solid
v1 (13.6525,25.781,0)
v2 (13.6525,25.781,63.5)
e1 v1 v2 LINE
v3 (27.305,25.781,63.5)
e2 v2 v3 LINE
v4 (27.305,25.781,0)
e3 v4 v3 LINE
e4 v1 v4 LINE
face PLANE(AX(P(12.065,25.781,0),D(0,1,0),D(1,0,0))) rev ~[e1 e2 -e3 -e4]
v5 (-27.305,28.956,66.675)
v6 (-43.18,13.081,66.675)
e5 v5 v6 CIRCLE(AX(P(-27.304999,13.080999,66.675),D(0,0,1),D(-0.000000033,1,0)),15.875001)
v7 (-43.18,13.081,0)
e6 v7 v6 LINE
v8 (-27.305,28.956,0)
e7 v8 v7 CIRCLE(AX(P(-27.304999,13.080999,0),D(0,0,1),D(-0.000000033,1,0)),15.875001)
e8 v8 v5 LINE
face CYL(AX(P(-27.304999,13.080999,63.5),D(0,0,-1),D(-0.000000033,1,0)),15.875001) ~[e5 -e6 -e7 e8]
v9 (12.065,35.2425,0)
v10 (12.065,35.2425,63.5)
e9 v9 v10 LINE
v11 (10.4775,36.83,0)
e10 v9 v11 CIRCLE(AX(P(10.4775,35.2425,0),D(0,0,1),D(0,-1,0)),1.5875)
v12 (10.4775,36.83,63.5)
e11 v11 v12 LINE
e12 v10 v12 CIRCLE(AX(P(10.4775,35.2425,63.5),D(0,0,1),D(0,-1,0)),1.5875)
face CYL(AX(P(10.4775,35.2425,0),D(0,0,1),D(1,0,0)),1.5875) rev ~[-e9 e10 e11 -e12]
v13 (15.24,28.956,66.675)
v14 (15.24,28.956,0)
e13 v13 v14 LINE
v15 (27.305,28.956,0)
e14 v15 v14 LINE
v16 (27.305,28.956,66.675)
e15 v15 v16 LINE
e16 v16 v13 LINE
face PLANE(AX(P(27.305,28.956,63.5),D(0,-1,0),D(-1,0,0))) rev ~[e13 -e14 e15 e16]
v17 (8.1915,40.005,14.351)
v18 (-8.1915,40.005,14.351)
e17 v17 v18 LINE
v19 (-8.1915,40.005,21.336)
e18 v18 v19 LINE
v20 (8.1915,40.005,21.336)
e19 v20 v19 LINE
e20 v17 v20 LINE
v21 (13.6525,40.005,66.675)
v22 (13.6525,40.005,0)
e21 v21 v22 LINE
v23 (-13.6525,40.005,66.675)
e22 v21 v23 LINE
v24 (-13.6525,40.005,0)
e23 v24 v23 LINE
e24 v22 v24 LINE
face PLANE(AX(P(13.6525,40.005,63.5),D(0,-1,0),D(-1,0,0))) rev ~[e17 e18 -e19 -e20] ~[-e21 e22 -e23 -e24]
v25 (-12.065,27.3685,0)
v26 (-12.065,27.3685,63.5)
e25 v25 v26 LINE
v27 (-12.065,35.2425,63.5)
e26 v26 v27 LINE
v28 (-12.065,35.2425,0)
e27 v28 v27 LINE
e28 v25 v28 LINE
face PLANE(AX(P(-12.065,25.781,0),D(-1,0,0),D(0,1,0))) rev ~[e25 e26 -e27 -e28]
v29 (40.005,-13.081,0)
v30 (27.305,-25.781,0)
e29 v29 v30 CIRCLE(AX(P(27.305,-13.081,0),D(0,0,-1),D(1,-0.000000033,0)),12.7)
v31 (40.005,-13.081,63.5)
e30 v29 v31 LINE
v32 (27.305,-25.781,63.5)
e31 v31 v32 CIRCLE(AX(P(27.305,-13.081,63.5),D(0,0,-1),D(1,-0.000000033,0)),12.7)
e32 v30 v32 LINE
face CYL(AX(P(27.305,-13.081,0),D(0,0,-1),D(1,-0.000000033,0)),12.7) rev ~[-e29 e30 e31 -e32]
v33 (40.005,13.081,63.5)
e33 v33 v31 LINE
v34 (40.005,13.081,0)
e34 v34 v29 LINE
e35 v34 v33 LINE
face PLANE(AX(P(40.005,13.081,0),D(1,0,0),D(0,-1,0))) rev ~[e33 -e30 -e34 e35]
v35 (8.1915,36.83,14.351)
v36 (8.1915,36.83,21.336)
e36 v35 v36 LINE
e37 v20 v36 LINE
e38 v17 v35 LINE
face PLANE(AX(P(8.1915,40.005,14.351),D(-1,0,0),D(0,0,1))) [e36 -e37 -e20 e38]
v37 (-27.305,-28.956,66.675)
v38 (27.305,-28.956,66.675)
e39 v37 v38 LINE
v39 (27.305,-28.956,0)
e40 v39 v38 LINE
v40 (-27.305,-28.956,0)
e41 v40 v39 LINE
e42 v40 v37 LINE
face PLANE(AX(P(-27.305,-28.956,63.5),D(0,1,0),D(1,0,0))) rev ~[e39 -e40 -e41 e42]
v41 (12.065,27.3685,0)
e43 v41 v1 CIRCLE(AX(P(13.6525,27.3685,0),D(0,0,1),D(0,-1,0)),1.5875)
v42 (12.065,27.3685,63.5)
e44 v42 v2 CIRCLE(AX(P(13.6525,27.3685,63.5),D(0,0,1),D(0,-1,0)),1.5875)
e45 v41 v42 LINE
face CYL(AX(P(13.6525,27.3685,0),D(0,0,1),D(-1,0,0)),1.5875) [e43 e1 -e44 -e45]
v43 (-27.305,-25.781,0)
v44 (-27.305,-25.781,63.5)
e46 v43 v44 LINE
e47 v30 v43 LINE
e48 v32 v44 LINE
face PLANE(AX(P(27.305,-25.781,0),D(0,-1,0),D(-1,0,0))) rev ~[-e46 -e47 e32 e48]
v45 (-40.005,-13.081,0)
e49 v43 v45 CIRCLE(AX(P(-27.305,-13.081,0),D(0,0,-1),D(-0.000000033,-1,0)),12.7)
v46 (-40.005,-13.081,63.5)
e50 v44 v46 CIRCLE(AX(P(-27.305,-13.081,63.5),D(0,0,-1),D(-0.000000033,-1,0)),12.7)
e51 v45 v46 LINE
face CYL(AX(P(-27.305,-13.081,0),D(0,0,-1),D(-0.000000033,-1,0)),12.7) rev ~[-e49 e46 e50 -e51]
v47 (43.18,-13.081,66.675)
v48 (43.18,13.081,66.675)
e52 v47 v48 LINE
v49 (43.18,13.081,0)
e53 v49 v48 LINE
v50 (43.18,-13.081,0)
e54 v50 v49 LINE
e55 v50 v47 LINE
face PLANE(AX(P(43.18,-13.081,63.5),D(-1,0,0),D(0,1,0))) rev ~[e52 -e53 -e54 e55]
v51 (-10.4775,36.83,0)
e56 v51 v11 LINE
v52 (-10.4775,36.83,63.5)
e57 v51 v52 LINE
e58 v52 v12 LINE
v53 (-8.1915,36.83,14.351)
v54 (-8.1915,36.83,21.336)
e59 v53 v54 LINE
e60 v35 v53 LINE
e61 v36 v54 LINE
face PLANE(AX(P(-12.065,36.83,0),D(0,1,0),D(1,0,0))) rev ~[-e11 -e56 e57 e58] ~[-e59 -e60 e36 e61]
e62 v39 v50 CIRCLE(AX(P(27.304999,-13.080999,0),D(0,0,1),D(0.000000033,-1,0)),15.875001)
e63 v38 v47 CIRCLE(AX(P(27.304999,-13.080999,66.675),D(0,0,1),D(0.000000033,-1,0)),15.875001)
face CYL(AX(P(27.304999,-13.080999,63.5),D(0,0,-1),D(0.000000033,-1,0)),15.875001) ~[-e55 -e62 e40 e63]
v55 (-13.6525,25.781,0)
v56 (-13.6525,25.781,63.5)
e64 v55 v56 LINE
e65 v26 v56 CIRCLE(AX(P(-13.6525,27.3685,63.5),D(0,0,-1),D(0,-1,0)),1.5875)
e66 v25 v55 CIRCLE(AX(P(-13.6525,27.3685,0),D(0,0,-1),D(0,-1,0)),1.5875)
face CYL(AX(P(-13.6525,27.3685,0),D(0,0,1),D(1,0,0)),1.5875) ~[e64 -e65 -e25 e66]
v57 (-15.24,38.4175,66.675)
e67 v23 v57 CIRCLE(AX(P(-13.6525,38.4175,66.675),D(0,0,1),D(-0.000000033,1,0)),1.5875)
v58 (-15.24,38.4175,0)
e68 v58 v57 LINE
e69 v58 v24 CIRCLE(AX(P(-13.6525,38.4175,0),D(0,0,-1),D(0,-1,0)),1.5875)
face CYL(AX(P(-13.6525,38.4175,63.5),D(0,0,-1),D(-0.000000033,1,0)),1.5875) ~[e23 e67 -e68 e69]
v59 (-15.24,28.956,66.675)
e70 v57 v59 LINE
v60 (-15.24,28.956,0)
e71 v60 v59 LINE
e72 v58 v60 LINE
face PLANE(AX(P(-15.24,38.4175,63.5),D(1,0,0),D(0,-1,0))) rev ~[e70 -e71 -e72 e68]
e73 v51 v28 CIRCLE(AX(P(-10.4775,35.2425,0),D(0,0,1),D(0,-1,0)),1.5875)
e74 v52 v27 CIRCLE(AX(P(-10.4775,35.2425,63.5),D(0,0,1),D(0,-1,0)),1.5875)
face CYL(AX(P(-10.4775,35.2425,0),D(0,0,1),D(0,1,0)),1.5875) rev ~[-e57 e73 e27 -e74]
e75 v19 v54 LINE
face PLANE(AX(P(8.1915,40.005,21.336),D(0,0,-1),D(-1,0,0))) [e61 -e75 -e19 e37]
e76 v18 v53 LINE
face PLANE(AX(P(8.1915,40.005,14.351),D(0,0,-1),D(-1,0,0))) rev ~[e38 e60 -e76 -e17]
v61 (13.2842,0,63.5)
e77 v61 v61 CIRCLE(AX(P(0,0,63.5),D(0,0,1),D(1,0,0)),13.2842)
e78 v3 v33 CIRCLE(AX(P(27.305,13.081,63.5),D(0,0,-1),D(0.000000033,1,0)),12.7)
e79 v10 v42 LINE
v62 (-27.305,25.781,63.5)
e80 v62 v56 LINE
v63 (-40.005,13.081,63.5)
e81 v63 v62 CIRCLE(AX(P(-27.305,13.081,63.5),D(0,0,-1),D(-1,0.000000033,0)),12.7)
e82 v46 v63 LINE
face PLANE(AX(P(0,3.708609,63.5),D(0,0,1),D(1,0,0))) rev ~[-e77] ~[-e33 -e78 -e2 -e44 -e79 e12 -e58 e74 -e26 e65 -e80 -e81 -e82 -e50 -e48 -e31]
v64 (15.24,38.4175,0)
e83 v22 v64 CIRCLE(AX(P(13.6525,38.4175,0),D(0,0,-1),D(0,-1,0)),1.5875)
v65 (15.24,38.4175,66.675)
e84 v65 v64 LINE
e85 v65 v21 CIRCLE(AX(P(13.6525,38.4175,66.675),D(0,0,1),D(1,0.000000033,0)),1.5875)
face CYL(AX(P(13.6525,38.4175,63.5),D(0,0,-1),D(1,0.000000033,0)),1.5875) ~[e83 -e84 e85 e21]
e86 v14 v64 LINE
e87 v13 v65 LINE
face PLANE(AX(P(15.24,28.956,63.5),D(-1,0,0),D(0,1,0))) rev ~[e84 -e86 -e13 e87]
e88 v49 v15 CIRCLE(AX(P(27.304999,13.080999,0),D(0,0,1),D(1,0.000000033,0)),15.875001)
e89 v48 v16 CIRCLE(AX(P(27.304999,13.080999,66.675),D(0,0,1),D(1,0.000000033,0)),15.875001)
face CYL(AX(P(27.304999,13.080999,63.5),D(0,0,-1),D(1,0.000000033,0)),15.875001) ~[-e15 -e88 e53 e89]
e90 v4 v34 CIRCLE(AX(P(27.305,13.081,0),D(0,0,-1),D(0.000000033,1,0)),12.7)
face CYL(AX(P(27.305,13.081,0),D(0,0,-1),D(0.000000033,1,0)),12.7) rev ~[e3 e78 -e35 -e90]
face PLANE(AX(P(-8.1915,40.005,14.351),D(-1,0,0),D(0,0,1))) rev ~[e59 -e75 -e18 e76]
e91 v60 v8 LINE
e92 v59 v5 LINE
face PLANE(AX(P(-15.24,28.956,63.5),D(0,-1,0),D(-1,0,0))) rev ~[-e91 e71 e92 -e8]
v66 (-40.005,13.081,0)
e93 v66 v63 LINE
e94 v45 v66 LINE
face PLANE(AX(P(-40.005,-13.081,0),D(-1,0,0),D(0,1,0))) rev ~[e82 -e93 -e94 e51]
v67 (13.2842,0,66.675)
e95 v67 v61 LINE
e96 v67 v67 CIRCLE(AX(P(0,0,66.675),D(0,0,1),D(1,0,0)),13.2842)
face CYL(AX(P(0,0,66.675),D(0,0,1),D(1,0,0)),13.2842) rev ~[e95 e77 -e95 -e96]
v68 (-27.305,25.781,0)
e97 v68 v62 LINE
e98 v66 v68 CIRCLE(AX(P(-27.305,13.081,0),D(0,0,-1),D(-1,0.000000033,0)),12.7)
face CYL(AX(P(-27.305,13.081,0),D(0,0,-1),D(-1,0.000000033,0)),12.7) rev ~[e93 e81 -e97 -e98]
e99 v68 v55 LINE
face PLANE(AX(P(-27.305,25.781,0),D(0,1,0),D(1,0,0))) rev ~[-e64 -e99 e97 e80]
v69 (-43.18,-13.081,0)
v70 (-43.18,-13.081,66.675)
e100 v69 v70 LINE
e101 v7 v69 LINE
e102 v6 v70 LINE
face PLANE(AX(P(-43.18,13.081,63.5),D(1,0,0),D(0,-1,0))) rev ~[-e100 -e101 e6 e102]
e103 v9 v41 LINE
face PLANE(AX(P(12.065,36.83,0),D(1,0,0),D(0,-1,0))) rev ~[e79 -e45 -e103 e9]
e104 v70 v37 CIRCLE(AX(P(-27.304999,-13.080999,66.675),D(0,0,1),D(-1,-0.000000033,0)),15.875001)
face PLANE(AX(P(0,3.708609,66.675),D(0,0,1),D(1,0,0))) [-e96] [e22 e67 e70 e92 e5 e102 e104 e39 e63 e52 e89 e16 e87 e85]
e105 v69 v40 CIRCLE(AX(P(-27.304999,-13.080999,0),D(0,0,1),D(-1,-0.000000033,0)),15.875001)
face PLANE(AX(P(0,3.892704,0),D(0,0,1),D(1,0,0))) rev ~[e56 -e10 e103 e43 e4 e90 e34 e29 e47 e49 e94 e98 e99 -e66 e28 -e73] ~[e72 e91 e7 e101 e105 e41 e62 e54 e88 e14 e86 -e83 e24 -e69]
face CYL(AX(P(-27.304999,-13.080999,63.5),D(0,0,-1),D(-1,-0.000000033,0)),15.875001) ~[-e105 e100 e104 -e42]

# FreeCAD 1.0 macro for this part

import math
import FreeCAD as App
import Part
import Sketcher
Q = App.Units.Quantity


def edges_at(feature, points):
    """Names of the edges that pass closest to the given points."""
    edges = feature.Shape.Edges
    near = lambda p: min(range(len(edges)), key=lambda i: edges[i].distToShape(Part.Vertex(*p))[0])
    return sorted({f"Edge{near(p) + 1}" for p in points})


def add_polygon(sketch, points):
    """Adds a closed chain of lines whose ends are joined by coincident constraints."""
    first, n = sketch.GeometryCount, len(points)
    for a, b in zip(points, points[1:] + points[:1]):
        sketch.addGeometry(Part.LineSegment(App.Vector(*a, 0), App.Vector(*b, 0)), False)
    for i in range(n):
        sketch.addConstraint(Sketcher.Constraint("Coincident", first + i, 2, first + (i + 1) % n, 1))

doc = App.newDocument("Part")
body = doc.addObject("PartDesign::Body", "Body")

# Sketch on XY plane
sketch1 = doc.addObject("Sketcher::SketchObject", "Sketch")
body.addObject(sketch1)
sketch1.AttachmentSupport = (doc.XY_Plane, [""])
sketch1.MapMode = "FlatFace"
sketch1.addGeometry([
    Part.LineSegment(App.Vector(-15, 40, 0), App.Vector(-15, 29, 0)),  # 0
    Part.LineSegment(App.Vector(-15, 29, 0), App.Vector(-27, 29, 0)),  # 1
    Part.ArcOfCircle(Part.Circle(App.Vector(-27, 13, 0), App.Vector(0, 0, 1), 16), math.radians(90), math.radians(180)),  # 2
    Part.LineSegment(App.Vector(-43, 13, 0), App.Vector(-43, -13, 0)),  # 3
    Part.ArcOfCircle(Part.Circle(App.Vector(-27, -13, 0), App.Vector(0, 0, 1), 16), math.radians(-180), math.radians(-90)),  # 4
    Part.LineSegment(App.Vector(-27, -29, 0), App.Vector(27, -29, 0)),  # 5
    Part.ArcOfCircle(Part.Circle(App.Vector(27, -13, 0), App.Vector(0, 0, 1), 16), math.radians(-90), math.radians(0)),  # 6
    Part.LineSegment(App.Vector(43, -13, 0), App.Vector(43, 13, 0)),  # 7
    Part.ArcOfCircle(Part.Circle(App.Vector(27, 13, 0), App.Vector(0, 0, 1), 16), math.radians(0), math.radians(90)),  # 8
    Part.LineSegment(App.Vector(27, 29, 0), App.Vector(15, 29, 0)),  # 9
    Part.LineSegment(App.Vector(15, 29, 0), App.Vector(15, 40, 0)),  # 10
    Part.LineSegment(App.Vector(15, 40, 0), App.Vector(-15, 40, 0)),  # 11
    Part.LineSegment(App.Vector(12, 37, 0), App.Vector(12, 26, 0)),  # 12
    Part.LineSegment(App.Vector(12, 26, 0), App.Vector(27, 26, 0)),  # 13
    Part.ArcOfCircle(Part.Circle(App.Vector(27, 13, 0), App.Vector(0, 0, 1), 13), math.radians(0), math.radians(90)),  # 14
    Part.LineSegment(App.Vector(40, 13, 0), App.Vector(40, -13, 0)),  # 15
    Part.ArcOfCircle(Part.Circle(App.Vector(27, -13, 0), App.Vector(0, 0, 1), 13), math.radians(-90), math.radians(0)),  # 16
    Part.LineSegment(App.Vector(27, -26, 0), App.Vector(-27, -26, 0)),  # 17
    Part.ArcOfCircle(Part.Circle(App.Vector(-27, -13, 0), App.Vector(0, 0, 1), 13), math.radians(-180), math.radians(-90)),  # 18
    Part.LineSegment(App.Vector(-40, -13, 0), App.Vector(-40, 13, 0)),  # 19
    Part.ArcOfCircle(Part.Circle(App.Vector(-27, 13, 0), App.Vector(0, 0, 1), 13), math.radians(90), math.radians(180)),  # 20
    Part.LineSegment(App.Vector(-27, 26, 0), App.Vector(-12, 26, 0)),  # 21
    Part.LineSegment(App.Vector(-12, 26, 0), App.Vector(-12, 37, 0)),  # 22
    Part.LineSegment(App.Vector(-12, 37, 0), App.Vector(12, 37, 0)),  # 23
], False)
sketch1.addConstraint([
    Sketcher.Constraint("Coincident", 0, 2, 1, 1),
    Sketcher.Constraint("Tangent", 1, 2, 2, 1),
    Sketcher.Constraint("Tangent", 2, 2, 3, 1),
    Sketcher.Constraint("Tangent", 3, 2, 4, 1),
    Sketcher.Constraint("Tangent", 4, 2, 5, 1),
    Sketcher.Constraint("Tangent", 5, 2, 6, 1),
    Sketcher.Constraint("Tangent", 6, 2, 7, 1),
    Sketcher.Constraint("Tangent", 7, 2, 8, 1),
    Sketcher.Constraint("Tangent", 8, 2, 9, 1),
    Sketcher.Constraint("Coincident", 9, 2, 10, 1),
    Sketcher.Constraint("Coincident", 10, 2, 11, 1),
    Sketcher.Constraint("Coincident", 11, 2, 0, 1),
    Sketcher.Constraint("Coincident", 12, 2, 13, 1),
    Sketcher.Constraint("Tangent", 13, 2, 14, 2),
    Sketcher.Constraint("Tangent", 14, 1, 15, 1),
    Sketcher.Constraint("Tangent", 15, 2, 16, 2),
    Sketcher.Constraint("Tangent", 16, 1, 17, 1),
    Sketcher.Constraint("Tangent", 17, 2, 18, 2),
    Sketcher.Constraint("Tangent", 18, 1, 19, 1),
    Sketcher.Constraint("Tangent", 19, 2, 20, 2),
    Sketcher.Constraint("Tangent", 20, 1, 21, 1),
    Sketcher.Constraint("Coincident", 21, 2, 22, 1),
    Sketcher.Constraint("Coincident", 22, 2, 23, 1),
    Sketcher.Constraint("Coincident", 23, 2, 12, 1),
    Sketcher.Constraint("Vertical", 0),
    Sketcher.Constraint("Horizontal", 1),
    Sketcher.Constraint("Vertical", 3),
    Sketcher.Constraint("Horizontal", 5),
    Sketcher.Constraint("Vertical", 7),
    Sketcher.Constraint("Horizontal", 9),
    Sketcher.Constraint("Vertical", 10),
    Sketcher.Constraint("Horizontal", 11),
    Sketcher.Constraint("Vertical", 12),
    Sketcher.Constraint("Horizontal", 13),
    Sketcher.Constraint("Vertical", 15),
    Sketcher.Constraint("Horizontal", 17),
    Sketcher.Constraint("Vertical", 19),
    Sketcher.Constraint("Horizontal", 21),
    Sketcher.Constraint("Vertical", 22),
    Sketcher.Constraint("Horizontal", 23),
    Sketcher.Constraint("Coincident", 14, 3, 8, 3),
    Sketcher.Constraint("Coincident", 16, 3, 6, 3),
    Sketcher.Constraint("Coincident", 18, 3, 4, 3),
    Sketcher.Constraint("Coincident", 20, 3, 2, 3),
    Sketcher.Constraint("Equal", 2, 4),
    Sketcher.Constraint("Equal", 4, 6),
    Sketcher.Constraint("Equal", 6, 8),
    Sketcher.Constraint("Symmetric", 2, 3, 6, 3, -1, 1),
    Sketcher.Constraint("Symmetric", 0, 2, 9, 2, -2),
    Sketcher.Constraint("Equal", 13, 21),
    Sketcher.Constraint("Equal", 10, 12),
    Sketcher.Constraint("Radius", 14, Q("0.5 in")),
    Sketcher.Constraint("DistanceX", 11, 2, 11, 1, Q("1.2 in")),
    Sketcher.Constraint("DistanceX", 13, 1, 13, 2, Q("0.6 in")),
    Sketcher.Constraint("Radius", 2, Q("0.625 in")),
    Sketcher.Constraint("DistanceX", 5, 1, 5, 2, Q("2.15 in")),
    Sketcher.Constraint("DistanceY", 3, 2, 3, 1, Q("1.03 in")),
    Sketcher.Constraint("DistanceY", 0, 2, 0, 1, Q("0.435 in")),
])
pad1 = doc.addObject("PartDesign::Pad", "Pad")
body.addObject(pad1)
pad1.Profile = sketch1
pad1.Length = Q("2.5 in")

# Sketch on XZ plane
sketch2 = doc.addObject("Sketcher::SketchObject", "Sketch001")
body.addObject(sketch2)
sketch2.AttachmentSupport = (doc.XZ_Plane, [""])
sketch2.MapMode = "FlatFace"
sketch2.AttachmentOffset = App.Placement(App.Vector(0, 0, -1.575 * 25.4), App.Rotation())
add_polygon(sketch2, [(8, 21), (8, 14), (-8, 14), (-8, 21)])  # lines 0-3
sketch2.addConstraint([
    Sketcher.Constraint("Vertical", 0),
    Sketcher.Constraint("Horizontal", 1),
    Sketcher.Constraint("Vertical", 2),
    Sketcher.Constraint("Horizontal", 3),
    Sketcher.Constraint("DistanceX", 1, 2, 1, 1, Q("0.645 in")),
    Sketcher.Constraint("DistanceY", 0, 2, 0, 1, Q("0.275 in")),
    Sketcher.Constraint("DistanceY", -1, 1, 2, 2, Q("0.84 in")),
    Sketcher.Constraint("DistanceX", -1, 1, 0, 2, Q("0.3225 in")),
])
pocket1 = doc.addObject("PartDesign::Pocket", "Pocket")
body.addObject(pocket1)
pocket1.Profile = sketch2
pocket1.Length = Q("0.125 in")
pocket1.Reversed = True
doc.recompute()

fillet = doc.addObject("PartDesign::Fillet", "Fillet")
body.addObject(fillet)
fillet.Base = (pocket1, edges_at(pocket1, [
    (-12.065, 25.781, 31.75),
    (-12.065, 36.83, 31.75),
    (12.065, 25.781, 31.75),
    (12.065, 36.83, 31.75),
    (15.24, 40.005, 31.75),
    (-15.24, 40.005, 31.75),
]))
fillet.Radius = Q("0.0625 in")

# Sketch on XY plane
sketch3 = doc.addObject("Sketcher::SketchObject", "Sketch002")
body.addObject(sketch3)
sketch3.AttachmentSupport = (doc.XY_Plane, [""])
sketch3.MapMode = "FlatFace"
sketch3.AttachmentOffset = App.Placement(App.Vector(0, 0, 2.5 * 25.4), App.Rotation())
sketch3.addGeometry([
    Part.LineSegment(App.Vector(13.7, 40, 0), App.Vector(-13.7, 40, 0)),  # 0
    Part.ArcOfCircle(Part.Circle(App.Vector(-13.7, 38.4, 0), App.Vector(0, 0, 1), 1.6), math.radians(90), math.radians(180)),  # 1
    Part.LineSegment(App.Vector(-15.2, 38.4, 0), App.Vector(-15.2, 29, 0)),  # 2
    Part.LineSegment(App.Vector(-15.2, 29, 0), App.Vector(-27.3, 29, 0)),  # 3
    Part.ArcOfCircle(Part.Circle(App.Vector(-27.3, 13.1, 0), App.Vector(0, 0, 1), 15.9), math.radians(90), math.radians(180)),  # 4
    Part.LineSegment(App.Vector(-43.2, 13.1, 0), App.Vector(-43.2, -13.1, 0)),  # 5
    Part.ArcOfCircle(Part.Circle(App.Vector(-27.3, -13.1, 0), App.Vector(0, 0, 1), 15.9), math.radians(-180), math.radians(-90)),  # 6
    Part.LineSegment(App.Vector(-27.3, -29, 0), App.Vector(27.3, -29, 0)),  # 7
    Part.ArcOfCircle(Part.Circle(App.Vector(27.3, -13.1, 0), App.Vector(0, 0, 1), 15.9), math.radians(-90), math.radians(0)),  # 8
    Part.LineSegment(App.Vector(43.2, -13.1, 0), App.Vector(43.2, 13.1, 0)),  # 9
    Part.ArcOfCircle(Part.Circle(App.Vector(27.3, 13.1, 0), App.Vector(0, 0, 1), 15.9), math.radians(0), math.radians(90)),  # 10
    Part.LineSegment(App.Vector(27.3, 29, 0), App.Vector(15.2, 29, 0)),  # 11
    Part.LineSegment(App.Vector(15.2, 29, 0), App.Vector(15.2, 38.4, 0)),  # 12
    Part.ArcOfCircle(Part.Circle(App.Vector(13.7, 38.4, 0), App.Vector(0, 0, 1), 1.6), math.radians(0), math.radians(90)),  # 13
], False)
sketch3.addConstraint([
    Sketcher.Constraint("Tangent", 0, 2, 1, 1),
    Sketcher.Constraint("Tangent", 1, 2, 2, 1),
    Sketcher.Constraint("Coincident", 2, 2, 3, 1),
    Sketcher.Constraint("Tangent", 3, 2, 4, 1),
    Sketcher.Constraint("Tangent", 4, 2, 5, 1),
    Sketcher.Constraint("Tangent", 5, 2, 6, 1),
    Sketcher.Constraint("Tangent", 6, 2, 7, 1),
    Sketcher.Constraint("Tangent", 7, 2, 8, 1),
    Sketcher.Constraint("Tangent", 8, 2, 9, 1),
    Sketcher.Constraint("Tangent", 9, 2, 10, 1),
    Sketcher.Constraint("Tangent", 10, 2, 11, 1),
    Sketcher.Constraint("Coincident", 11, 2, 12, 1),
    Sketcher.Constraint("Tangent", 12, 2, 13, 1),
    Sketcher.Constraint("Tangent", 13, 2, 0, 1),
    Sketcher.Constraint("Horizontal", 0),
    Sketcher.Constraint("Vertical", 2),
    Sketcher.Constraint("Horizontal", 3),
    Sketcher.Constraint("Vertical", 5),
    Sketcher.Constraint("Horizontal", 7),
    Sketcher.Constraint("Vertical", 9),
    Sketcher.Constraint("Horizontal", 11),
    Sketcher.Constraint("Vertical", 12),
    Sketcher.Constraint("Equal", 4, 6),
    Sketcher.Constraint("Equal", 6, 8),
    Sketcher.Constraint("Equal", 8, 10),
    Sketcher.Constraint("Equal", 1, 13),
    Sketcher.Constraint("Symmetric", 4, 3, 8, 3, -1, 1),
    Sketcher.Constraint("Symmetric", 2, 2, 11, 2, -2),
    Sketcher.Constraint("Radius", 1, Q("0.0625 in")),
    Sketcher.Constraint("Radius", 4, Q("0.625 in")),
    Sketcher.Constraint("DistanceX", 7, 1, 7, 2, Q("2.15 in")),
    Sketcher.Constraint("DistanceY", 5, 2, 5, 1, Q("1.03 in")),
    Sketcher.Constraint("DistanceX", 1, 2, -1, 1, Q("0.6 in")),
    Sketcher.Constraint("DistanceY", 4, 3, 0, 2, Q("1.06 in")),
])
pad2 = doc.addObject("PartDesign::Pad", "Pad001")
body.addObject(pad2)
pad2.Profile = sketch3
pad2.Length = Q("0.125 in")

# Sketch on XY plane
sketch4 = doc.addObject("Sketcher::SketchObject", "Sketch003")
body.addObject(sketch4)
sketch4.AttachmentSupport = (doc.XY_Plane, [""])
sketch4.MapMode = "FlatFace"
sketch4.AttachmentOffset = App.Placement(App.Vector(0, 0, 2.625 * 25.4), App.Rotation())
sketch4.addGeometry(Part.Circle(App.Vector(0, 0, 0), App.Vector(0, 0, 1), 13), False)
sketch4.addConstraint([
    Sketcher.Constraint("Coincident", 0, 3, -1, 1),
    Sketcher.Constraint("Diameter", 0, Q("1.046 in")),
])
pocket2 = doc.addObject("PartDesign::Pocket", "Pocket001")
body.addObject(pocket2)
pocket2.Profile = sketch4
pocket2.Type = "ThroughAll"
body2 = doc.addObject("PartDesign::Body", "Body001")
doc.recompute()

body2.BaseFeature = body
doc.recompute()
body.Visibility = False

doc.recompute()
